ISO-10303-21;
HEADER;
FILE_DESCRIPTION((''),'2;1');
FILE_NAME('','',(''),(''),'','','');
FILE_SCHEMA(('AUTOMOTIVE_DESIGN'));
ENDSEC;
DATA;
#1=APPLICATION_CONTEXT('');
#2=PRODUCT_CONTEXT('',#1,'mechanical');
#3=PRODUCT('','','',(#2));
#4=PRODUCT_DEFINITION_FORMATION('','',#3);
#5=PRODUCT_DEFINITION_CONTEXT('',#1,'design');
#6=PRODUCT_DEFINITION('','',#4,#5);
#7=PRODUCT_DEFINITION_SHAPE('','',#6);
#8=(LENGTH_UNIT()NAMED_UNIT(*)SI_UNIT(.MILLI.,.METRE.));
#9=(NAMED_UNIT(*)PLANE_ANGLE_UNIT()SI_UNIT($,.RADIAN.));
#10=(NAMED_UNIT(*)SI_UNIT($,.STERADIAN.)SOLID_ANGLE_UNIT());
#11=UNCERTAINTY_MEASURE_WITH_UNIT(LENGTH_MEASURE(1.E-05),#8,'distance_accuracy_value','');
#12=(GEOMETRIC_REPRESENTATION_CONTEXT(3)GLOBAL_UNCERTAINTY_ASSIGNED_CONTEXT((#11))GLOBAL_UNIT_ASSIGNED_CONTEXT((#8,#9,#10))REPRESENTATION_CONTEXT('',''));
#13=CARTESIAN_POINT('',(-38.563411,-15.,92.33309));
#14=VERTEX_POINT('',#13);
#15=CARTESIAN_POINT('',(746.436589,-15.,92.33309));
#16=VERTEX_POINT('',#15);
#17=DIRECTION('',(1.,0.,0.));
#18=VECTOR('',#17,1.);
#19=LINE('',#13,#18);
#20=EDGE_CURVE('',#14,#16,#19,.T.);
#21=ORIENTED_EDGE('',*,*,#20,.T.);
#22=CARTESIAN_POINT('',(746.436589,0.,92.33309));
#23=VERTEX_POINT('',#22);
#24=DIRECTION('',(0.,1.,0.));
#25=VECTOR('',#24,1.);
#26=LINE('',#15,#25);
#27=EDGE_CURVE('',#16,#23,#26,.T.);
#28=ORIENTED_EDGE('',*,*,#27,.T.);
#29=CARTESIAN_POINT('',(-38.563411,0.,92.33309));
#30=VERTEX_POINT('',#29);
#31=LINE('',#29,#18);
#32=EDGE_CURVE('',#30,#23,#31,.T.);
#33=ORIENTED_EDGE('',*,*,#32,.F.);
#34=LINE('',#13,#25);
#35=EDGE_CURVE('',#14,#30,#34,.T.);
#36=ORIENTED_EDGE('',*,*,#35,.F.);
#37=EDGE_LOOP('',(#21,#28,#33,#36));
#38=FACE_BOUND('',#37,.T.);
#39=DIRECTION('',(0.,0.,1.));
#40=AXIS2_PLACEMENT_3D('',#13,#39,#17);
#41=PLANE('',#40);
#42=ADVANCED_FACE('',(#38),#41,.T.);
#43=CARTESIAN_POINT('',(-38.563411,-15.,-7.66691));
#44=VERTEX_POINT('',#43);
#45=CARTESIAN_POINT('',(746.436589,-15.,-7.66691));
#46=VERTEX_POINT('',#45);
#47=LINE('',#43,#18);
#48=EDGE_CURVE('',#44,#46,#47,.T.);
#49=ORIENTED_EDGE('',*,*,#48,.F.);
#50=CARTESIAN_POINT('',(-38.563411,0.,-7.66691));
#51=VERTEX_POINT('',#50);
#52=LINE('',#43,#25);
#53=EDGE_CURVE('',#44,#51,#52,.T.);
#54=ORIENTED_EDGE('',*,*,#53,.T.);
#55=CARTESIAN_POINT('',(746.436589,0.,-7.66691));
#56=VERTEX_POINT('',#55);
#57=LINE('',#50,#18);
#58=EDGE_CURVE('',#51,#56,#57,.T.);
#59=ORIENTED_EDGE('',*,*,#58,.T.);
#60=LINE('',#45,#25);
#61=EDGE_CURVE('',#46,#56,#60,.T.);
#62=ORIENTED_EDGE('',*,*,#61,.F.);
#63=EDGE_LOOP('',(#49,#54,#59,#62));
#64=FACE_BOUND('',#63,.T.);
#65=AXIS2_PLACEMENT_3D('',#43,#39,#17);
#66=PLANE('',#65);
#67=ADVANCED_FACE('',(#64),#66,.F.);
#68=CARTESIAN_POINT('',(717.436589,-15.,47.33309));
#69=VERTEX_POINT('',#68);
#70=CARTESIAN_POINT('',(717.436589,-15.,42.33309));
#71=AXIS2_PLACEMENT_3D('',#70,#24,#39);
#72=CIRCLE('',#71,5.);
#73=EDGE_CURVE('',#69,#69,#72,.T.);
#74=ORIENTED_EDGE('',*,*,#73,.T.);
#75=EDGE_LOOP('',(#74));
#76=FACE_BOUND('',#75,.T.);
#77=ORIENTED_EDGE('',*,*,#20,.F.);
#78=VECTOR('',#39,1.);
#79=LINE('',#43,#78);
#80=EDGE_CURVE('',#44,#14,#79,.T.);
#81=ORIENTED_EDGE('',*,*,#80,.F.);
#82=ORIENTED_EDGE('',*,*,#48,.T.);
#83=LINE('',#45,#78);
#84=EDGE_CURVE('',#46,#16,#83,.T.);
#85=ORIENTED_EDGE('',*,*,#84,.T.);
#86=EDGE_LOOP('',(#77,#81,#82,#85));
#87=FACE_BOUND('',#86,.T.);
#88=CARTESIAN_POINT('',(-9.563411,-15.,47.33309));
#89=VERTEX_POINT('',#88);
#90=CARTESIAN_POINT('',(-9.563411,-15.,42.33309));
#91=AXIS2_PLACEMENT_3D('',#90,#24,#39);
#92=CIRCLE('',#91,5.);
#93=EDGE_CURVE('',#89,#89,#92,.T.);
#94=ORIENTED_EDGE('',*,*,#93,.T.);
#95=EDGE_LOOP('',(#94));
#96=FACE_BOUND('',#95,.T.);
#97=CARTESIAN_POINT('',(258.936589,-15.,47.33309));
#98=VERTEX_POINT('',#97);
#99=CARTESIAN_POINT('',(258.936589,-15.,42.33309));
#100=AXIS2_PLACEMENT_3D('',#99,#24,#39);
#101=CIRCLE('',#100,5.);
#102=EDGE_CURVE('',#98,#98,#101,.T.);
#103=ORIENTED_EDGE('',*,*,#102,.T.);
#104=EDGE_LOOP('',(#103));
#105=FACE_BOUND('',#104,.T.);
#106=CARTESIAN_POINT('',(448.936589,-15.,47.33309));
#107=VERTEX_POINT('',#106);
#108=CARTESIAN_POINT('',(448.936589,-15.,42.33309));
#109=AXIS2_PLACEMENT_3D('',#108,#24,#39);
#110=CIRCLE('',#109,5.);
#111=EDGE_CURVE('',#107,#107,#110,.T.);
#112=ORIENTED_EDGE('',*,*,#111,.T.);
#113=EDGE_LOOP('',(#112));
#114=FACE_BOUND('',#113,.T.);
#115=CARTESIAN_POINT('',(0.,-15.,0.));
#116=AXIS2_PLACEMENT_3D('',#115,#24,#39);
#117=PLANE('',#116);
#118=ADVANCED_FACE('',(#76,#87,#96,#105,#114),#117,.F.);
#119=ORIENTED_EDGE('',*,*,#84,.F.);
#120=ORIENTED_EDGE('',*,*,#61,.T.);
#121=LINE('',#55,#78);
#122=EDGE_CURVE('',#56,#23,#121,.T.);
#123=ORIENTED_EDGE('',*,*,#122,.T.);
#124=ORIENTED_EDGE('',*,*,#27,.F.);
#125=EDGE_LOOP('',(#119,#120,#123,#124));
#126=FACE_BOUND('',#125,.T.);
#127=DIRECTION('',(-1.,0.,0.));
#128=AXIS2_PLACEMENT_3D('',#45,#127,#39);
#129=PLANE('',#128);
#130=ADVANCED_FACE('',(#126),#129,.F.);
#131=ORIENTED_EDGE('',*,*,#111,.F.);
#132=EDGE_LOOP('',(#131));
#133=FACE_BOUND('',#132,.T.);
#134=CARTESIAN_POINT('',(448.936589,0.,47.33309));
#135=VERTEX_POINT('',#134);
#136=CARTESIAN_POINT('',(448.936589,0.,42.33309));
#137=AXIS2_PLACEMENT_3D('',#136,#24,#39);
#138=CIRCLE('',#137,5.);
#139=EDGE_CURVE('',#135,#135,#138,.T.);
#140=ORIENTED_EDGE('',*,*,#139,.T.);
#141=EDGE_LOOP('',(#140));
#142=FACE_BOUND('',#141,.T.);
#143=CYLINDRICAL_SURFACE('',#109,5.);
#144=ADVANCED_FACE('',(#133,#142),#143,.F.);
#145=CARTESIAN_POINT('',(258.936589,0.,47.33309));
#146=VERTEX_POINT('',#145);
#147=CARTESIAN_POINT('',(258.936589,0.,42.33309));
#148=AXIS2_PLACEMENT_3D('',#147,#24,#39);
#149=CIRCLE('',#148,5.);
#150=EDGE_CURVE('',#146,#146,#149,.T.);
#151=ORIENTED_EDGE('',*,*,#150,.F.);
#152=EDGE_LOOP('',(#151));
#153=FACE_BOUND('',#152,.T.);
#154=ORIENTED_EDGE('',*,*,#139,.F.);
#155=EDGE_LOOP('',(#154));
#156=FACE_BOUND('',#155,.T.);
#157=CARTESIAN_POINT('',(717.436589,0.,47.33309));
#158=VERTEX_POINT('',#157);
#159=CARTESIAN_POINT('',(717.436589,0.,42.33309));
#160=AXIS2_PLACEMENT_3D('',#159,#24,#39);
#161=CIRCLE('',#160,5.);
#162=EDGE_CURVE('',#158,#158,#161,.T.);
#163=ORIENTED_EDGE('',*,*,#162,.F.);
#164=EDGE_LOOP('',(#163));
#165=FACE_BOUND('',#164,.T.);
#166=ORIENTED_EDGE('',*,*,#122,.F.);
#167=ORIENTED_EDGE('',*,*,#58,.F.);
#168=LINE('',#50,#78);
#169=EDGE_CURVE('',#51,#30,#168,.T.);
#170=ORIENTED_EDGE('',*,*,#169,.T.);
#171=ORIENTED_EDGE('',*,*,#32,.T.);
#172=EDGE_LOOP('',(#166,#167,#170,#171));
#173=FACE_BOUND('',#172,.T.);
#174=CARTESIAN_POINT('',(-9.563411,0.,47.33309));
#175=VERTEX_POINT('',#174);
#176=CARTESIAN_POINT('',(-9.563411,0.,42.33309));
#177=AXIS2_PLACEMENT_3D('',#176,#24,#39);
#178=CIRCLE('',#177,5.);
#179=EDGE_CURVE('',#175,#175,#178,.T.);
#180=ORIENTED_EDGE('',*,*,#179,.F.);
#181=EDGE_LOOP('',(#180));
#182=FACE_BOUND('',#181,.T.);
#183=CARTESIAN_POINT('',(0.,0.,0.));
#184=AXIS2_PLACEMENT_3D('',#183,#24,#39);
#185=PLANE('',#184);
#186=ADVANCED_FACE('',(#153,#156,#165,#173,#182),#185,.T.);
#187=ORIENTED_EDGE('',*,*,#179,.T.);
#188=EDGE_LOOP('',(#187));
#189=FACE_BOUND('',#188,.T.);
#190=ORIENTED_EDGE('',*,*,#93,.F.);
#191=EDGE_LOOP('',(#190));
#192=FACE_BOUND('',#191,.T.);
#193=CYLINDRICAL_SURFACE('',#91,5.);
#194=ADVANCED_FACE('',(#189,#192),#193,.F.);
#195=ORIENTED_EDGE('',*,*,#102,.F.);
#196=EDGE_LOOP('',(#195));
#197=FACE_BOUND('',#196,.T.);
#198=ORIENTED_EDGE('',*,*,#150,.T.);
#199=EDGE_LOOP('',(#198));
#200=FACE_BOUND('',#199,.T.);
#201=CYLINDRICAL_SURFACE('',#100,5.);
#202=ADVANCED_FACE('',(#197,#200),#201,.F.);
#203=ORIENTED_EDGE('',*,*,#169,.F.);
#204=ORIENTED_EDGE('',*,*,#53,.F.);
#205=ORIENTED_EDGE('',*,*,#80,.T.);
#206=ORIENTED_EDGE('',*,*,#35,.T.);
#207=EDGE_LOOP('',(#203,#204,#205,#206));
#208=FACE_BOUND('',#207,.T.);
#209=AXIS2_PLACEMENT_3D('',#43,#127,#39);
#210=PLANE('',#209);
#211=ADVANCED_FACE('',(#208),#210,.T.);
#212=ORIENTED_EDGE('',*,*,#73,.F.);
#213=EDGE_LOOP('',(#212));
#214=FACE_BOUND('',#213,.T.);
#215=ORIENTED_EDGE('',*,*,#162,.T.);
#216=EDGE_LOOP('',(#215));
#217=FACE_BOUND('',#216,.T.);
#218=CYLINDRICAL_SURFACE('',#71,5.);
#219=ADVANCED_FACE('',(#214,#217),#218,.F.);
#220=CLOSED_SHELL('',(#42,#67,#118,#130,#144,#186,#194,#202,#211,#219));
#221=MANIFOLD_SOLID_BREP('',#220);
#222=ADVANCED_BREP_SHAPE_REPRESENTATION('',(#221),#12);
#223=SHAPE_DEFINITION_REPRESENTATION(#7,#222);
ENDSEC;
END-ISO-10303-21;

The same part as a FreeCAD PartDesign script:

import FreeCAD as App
import Part
import Sketcher

doc = App.newDocument("Part")
body = doc.addObject("PartDesign::Body", "Body")

sketch1 = doc.addObject("Sketcher::SketchObject", "Sketch")
body.addObject(sketch1)
sketch1.AttachmentSupport = (doc.XZ_Plane, [""])
sketch1.MapMode = "FlatFace"
sketch1.addGeometry([
    Part.LineSegment(App.Vector(-39, -8, 0), App.Vector(-39, 92, 0)),
    Part.LineSegment(App.Vector(-39, 92, 0), App.Vector(746, 92, 0)),
    Part.LineSegment(App.Vector(746, 92, 0), App.Vector(746, -8, 0)),
    Part.LineSegment(App.Vector(746, -8, 0), App.Vector(-39, -8, 0)),
], False)
sketch1.addConstraint([
    Sketcher.Constraint("Coincident", 0, 2, 1, 1),
    Sketcher.Constraint("Coincident", 1, 2, 2, 1),
    Sketcher.Constraint("Coincident", 2, 2, 3, 1),
    Sketcher.Constraint("Coincident", 3, 2, 0, 1),
    Sketcher.Constraint("Vertical", 0),
    Sketcher.Constraint("Horizontal", 1),
    Sketcher.Constraint("Vertical", 2),
    Sketcher.Constraint("Horizontal", 3),
    Sketcher.Constraint("DistanceX", 1, 1, 1, 2, 785.0),
    Sketcher.Constraint("DistanceY", 0, 1, 0, 2, 100.0),
    Sketcher.Constraint("DistanceX", 0, 2, -1, 1, 38.563411),
    Sketcher.Constraint("DistanceY", -1, 1, 0, 2, 92.33309),
])
pad1 = doc.addObject("PartDesign::Pad", "Pad")
body.addObject(pad1)
pad1.Profile = sketch1
pad1.Length = 15

sketch2 = doc.addObject("Sketcher::SketchObject", "Sketch001")
body.addObject(sketch2)
sketch2.AttachmentSupport = (doc.XZ_Plane, [""])
sketch2.MapMode = "FlatFace"
sketch2.addGeometry([
    Part.Circle(App.Vector(259, 42, 0), App.Vector(0, 0, 1), 5),
    Part.Circle(App.Vector(449, 42, 0), App.Vector(0, 0, 1), 5),
], False)
sketch2.addConstraint([
    Sketcher.Constraint("Equal", 0, 1),
    Sketcher.Constraint("Horizontal", 0, 3, 1, 3),
    Sketcher.Constraint("Diameter", 0, 10.0),
    Sketcher.Constraint("DistanceX", 0, 3, 1, 3, 190.0),
    Sketcher.Constraint("DistanceX", -1, 1, 0, 3, 258.936589),
    Sketcher.Constraint("DistanceY", -1, 1, 0, 3, 42.33309),
])
pocket1 = doc.addObject("PartDesign::Pocket", "Pocket")
body.addObject(pocket1)
pocket1.Profile = sketch2
pocket1.Type = "ThroughAll"
pocket1.Reversed = True

sketch3 = doc.addObject("Sketcher::SketchObject", "Sketch002")
body.addObject(sketch3)
sketch3.AttachmentSupport = (doc.XZ_Plane, [""])
sketch3.MapMode = "FlatFace"
sketch3.addGeometry([
    Part.Circle(App.Vector(-10, 42, 0), App.Vector(0, 0, 1), 5),
    Part.Circle(App.Vector(717, 42, 0), App.Vector(0, 0, 1), 5),
], False)
sketch3.addConstraint([
    Sketcher.Constraint("Equal", 0, 1),
    Sketcher.Constraint("Horizontal", 0, 3, 1, 3),
    Sketcher.Constraint("Diameter", 0, 10.0),
    Sketcher.Constraint("DistanceX", 0, 3, 1, 3, 727.0),
    Sketcher.Constraint("DistanceX", 0, 3, -1, 1, 9.563411),
    Sketcher.Constraint("DistanceY", -1, 1, 0, 3, 42.33309),
])
pocket2 = doc.addObject("PartDesign::Pocket", "Pocket001")
body.addObject(pocket2)
pocket2.Profile = sketch3
pocket2.Type = "ThroughAll"
pocket2.Reversed = True

doc.recompute()
